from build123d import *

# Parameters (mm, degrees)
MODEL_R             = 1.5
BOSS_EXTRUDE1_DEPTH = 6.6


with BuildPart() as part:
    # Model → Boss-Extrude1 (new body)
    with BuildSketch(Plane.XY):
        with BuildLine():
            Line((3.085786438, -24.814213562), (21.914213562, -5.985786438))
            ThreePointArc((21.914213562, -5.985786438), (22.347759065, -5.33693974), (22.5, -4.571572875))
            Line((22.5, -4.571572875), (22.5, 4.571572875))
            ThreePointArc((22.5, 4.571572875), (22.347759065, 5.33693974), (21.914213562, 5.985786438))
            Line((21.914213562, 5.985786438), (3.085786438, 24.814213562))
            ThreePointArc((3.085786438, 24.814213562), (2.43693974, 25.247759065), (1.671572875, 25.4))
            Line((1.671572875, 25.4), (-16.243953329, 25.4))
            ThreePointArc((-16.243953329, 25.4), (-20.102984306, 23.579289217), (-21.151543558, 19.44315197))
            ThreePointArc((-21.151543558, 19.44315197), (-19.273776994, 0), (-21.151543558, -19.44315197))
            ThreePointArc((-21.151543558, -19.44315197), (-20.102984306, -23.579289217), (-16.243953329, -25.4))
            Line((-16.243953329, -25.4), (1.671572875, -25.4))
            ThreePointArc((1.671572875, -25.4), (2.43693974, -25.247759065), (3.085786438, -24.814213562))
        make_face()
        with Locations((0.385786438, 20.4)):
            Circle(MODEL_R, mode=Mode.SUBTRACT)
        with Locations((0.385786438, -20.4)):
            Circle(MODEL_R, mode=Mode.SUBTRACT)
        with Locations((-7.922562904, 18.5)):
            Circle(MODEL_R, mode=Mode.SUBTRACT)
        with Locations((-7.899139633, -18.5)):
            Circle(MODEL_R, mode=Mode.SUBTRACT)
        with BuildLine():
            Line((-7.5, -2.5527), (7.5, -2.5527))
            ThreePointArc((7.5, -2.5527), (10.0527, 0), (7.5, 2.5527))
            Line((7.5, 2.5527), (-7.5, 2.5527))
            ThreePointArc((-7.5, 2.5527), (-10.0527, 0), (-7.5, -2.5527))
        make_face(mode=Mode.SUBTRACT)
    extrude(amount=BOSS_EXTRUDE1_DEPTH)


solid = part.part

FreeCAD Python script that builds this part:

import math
import FreeCAD as App
import Part
import Sketcher

V = App.Vector

doc = App.newDocument("Part")
params = doc.addObject("Spreadsheet::Sheet", "Params")
for row, (alias, value) in enumerate([
    ("sketch1_diameter", "3 mm"),
    ("sketch1_radius", "2 mm"),
    ("sketch1_radius2", "5 mm"),
    ("sketch1_radius3", "101.6 mm"),
    ("sketch1_width", "15 mm"),
    ("pad1_length", "6.6 mm"),
], start=1):
    params.set(f"A{row}", alias)
    params.set(f"B{row}", "=" + value)
    params.setAlias(f"B{row}", alias)

body = doc.addObject("PartDesign::Body", "Body")

sketch1 = body.newObject("Sketcher::SketchObject", "Sketch")
sketch1.AttachmentSupport = (doc.getObject("XY_Plane"), [""])
sketch1.MapMode = "FlatFace"
sketch1.addGeometry(Part.LineSegment(V(3.1, -24.8, 0), V(21.9, -6, 0)), False)
sketch1.addGeometry(Part.ArcOfCircle(Part.Circle(V(20.5, -4.6, 0), V(0, 0, 1), 2), math.radians(-45), math.radians(0)), False)
sketch1.addGeometry(Part.LineSegment(V(22.5, -4.6, 0), V(22.5, 4.6, 0)), False)
sketch1.addGeometry(Part.ArcOfCircle(Part.Circle(V(20.5, 4.6, 0), V(0, 0, 1), 2), math.radians(0), math.radians(45)), False)
sketch1.addGeometry(Part.LineSegment(V(21.9, 6, 0), V(3.1, 24.8, 0)), False)
sketch1.addGeometry(Part.ArcOfCircle(Part.Circle(V(1.7, 23.4, 0), V(0, 0, 1), 2), math.radians(45), math.radians(90)), False)
sketch1.addGeometry(Part.LineSegment(V(1.7, 25.4, 0), V(-16.2, 25.4, 0)), False)
sketch1.addGeometry(Part.ArcOfCircle(Part.Circle(V(-16.2, 20.4, 0), V(0, 0, 1), 5), math.radians(90), math.radians(191)), False)
sketch1.addGeometry(Part.ArcOfCircle(Part.Circle(V(-120.9, 0, 0), V(0, 0, 1), 101.6), math.radians(-11), math.radians(11)), False)
sketch1.addGeometry(Part.ArcOfCircle(Part.Circle(V(-16.2, -20.4, 0), V(0, 0, 1), 5), math.radians(169), math.radians(270)), False)
sketch1.addGeometry(Part.LineSegment(V(-16.2, -25.4, 0), V(1.7, -25.4, 0)), False)
sketch1.addGeometry(Part.ArcOfCircle(Part.Circle(V(1.7, -23.4, 0), V(0, 0, 1), 2), math.radians(-90), math.radians(-45)), False)
sketch1.addGeometry(Part.Circle(V(-7.9, -18.5, 0), V(0, 0, 1), 1.5), False)
sketch1.addGeometry(Part.Circle(V(0.4, -20.4, 0), V(0, 0, 1), 1.5), False)
sketch1.addGeometry(Part.Circle(V(-7.9, 18.5, 0), V(0, 0, 1), 1.5), False)
sketch1.addGeometry(Part.LineSegment(V(7.5, -2.6, 0), V(-7.5, -2.6, 0)), False)
sketch1.addGeometry(Part.ArcOfCircle(Part.Circle(V(-7.5, 0, 0), V(0, 0, 1), 2.6), math.radians(90), math.radians(270)), False)
sketch1.addGeometry(Part.LineSegment(V(-7.5, 2.6, 0), V(7.5, 2.6, 0)), False)
sketch1.addGeometry(Part.ArcOfCircle(Part.Circle(V(7.5, 0, 0), V(0, 0, 1), 2.6), math.radians(-90), math.radians(90)), False)
sketch1.addGeometry(Part.Circle(V(0.4, 20.4, 0), V(0, 0, 1), 1.5), False)
sketch1.addConstraint(Sketcher.Constraint("Tangent", 0, 2, 1, 1))
sketch1.addConstraint(Sketcher.Constraint("Tangent", 1, 2, 2, 1))
sketch1.addConstraint(Sketcher.Constraint("Tangent", 2, 2, 3, 1))
sketch1.addConstraint(Sketcher.Constraint("Tangent", 3, 2, 4, 1))
sketch1.addConstraint(Sketcher.Constraint("Tangent", 4, 2, 5, 1))
sketch1.addConstraint(Sketcher.Constraint("Tangent", 5, 2, 6, 1))
sketch1.addConstraint(Sketcher.Constraint("Tangent", 6, 2, 7, 1))
sketch1.addConstraint(Sketcher.Constraint("Tangent", 7, 2, 8, 2))
sketch1.addConstraint(Sketcher.Constraint("Tangent", 8, 1, 9, 1))
sketch1.addConstraint(Sketcher.Constraint("Tangent", 9, 2, 10, 1))
sketch1.addConstraint(Sketcher.Constraint("Tangent", 10, 2, 11, 1))
sketch1.addConstraint(Sketcher.Constraint("Tangent", 11, 2, 0, 1))
sketch1.addConstraint(Sketcher.Constraint("Tangent", 15, 2, 16, 2))
sketch1.addConstraint(Sketcher.Constraint("Tangent", 16, 1, 17, 1))
sketch1.addConstraint(Sketcher.Constraint("Tangent", 17, 2, 18, 2))
sketch1.addConstraint(Sketcher.Constraint("Tangent", 18, 1, 15, 1))
sketch1.addConstraint(Sketcher.Constraint("Vertical", 2))
sketch1.addConstraint(Sketcher.Constraint("Horizontal", 6))
sketch1.addConstraint(Sketcher.Constraint("Horizontal", 10))
sketch1.addConstraint(Sketcher.Constraint("Horizontal", 15))
sketch1.addConstraint(Sketcher.Constraint("Horizontal", 17))
sketch1.addConstraint(Sketcher.Constraint("Equal", 1, 3))
sketch1.addConstraint(Sketcher.Constraint("Equal", 3, 5))
sketch1.addConstraint(Sketcher.Constraint("Equal", 7, 9))
sketch1.addConstraint(Sketcher.Constraint("Equal", 5, 11))
sketch1.addConstraint(Sketcher.Constraint("Equal", 12, 13))
sketch1.addConstraint(Sketcher.Constraint("Equal", 13, 14))
sketch1.addConstraint(Sketcher.Constraint("Equal", 14, 19))
sketch1.addConstraint(Sketcher.Constraint("Symmetric", 16, 3, 18, 3, -1, 1))
sketch1.addConstraint(Sketcher.Constraint("Symmetric", 7, 3, 9, 3, -1))
sketch1.addConstraint(Sketcher.Constraint("Symmetric", 13, 3, 19, 3, -1))
sketch1.addConstraint(Sketcher.Constraint("Symmetric", 0, 2, 3, 2, -1))
sketch1.addConstraint(Sketcher.Constraint("Perpendicular", 0, 4))
sketch1.addConstraint(Sketcher.Constraint("Horizontal", 9, 3, 13, 3))
sketch1.addConstraint(Sketcher.Constraint("Diameter", 12, 3.0))
sketch1.addConstraint(Sketcher.Constraint("Radius", 1, 2.0))
sketch1.addConstraint(Sketcher.Constraint("Radius", 7, 5.0))
sketch1.addConstraint(Sketcher.Constraint("Radius", 8, 101.6))
sketch1.addConstraint(Sketcher.Constraint("DistanceX", 15, 2, 15, 1, 15.0))
sketch1.addConstraint(Sketcher.Constraint("DistanceY", 12, 3, 14, 3, 37.0))
sketch1.addConstraint(Sketcher.Constraint("DistanceX", 18, 3, 1, 3, 13.0))
sketch1.addConstraint(Sketcher.Constraint("DistanceY", -1, 1, 5, 3, 23.4))
sketch1.addConstraint(Sketcher.Constraint("DistanceY", 12, 3, -1, 1, 18.5))
sketch1.addConstraint(Sketcher.Constraint("Radius", 16, 2.5527))
sketch1.addConstraint(Sketcher.Constraint("DistanceX", 19, 3, 4, 2, 2.7))
sketch1.addConstraint(Sketcher.Constraint("DistanceX", 6, 2, 6, 1, 17.915526))
sketch1.addConstraint(Sketcher.Constraint("DistanceY", 2, 1, 2, 2, 9.143146))
sketch1.addConstraint(Sketcher.Constraint("DistanceX", 12, 3, -1, 1, 7.89914))
sketch1.addConstraint(Sketcher.Constraint("DistanceX", 7, 3, 14, 3, 8.32139))
sketch1.setExpression("Constraints[34]", "Params.sketch1_diameter")
sketch1.setExpression("Constraints[35]", "Params.sketch1_radius")
sketch1.setExpression("Constraints[36]", "Params.sketch1_radius2")
sketch1.setExpression("Constraints[37]", "Params.sketch1_radius3")
sketch1.setExpression("Constraints[38]", "Params.sketch1_width")
pad1 = body.newObject("PartDesign::Pad", "Pad")
pad1.Profile = sketch1
pad1.setExpression("Length", "Params.pad1_length")

doc.recompute()
